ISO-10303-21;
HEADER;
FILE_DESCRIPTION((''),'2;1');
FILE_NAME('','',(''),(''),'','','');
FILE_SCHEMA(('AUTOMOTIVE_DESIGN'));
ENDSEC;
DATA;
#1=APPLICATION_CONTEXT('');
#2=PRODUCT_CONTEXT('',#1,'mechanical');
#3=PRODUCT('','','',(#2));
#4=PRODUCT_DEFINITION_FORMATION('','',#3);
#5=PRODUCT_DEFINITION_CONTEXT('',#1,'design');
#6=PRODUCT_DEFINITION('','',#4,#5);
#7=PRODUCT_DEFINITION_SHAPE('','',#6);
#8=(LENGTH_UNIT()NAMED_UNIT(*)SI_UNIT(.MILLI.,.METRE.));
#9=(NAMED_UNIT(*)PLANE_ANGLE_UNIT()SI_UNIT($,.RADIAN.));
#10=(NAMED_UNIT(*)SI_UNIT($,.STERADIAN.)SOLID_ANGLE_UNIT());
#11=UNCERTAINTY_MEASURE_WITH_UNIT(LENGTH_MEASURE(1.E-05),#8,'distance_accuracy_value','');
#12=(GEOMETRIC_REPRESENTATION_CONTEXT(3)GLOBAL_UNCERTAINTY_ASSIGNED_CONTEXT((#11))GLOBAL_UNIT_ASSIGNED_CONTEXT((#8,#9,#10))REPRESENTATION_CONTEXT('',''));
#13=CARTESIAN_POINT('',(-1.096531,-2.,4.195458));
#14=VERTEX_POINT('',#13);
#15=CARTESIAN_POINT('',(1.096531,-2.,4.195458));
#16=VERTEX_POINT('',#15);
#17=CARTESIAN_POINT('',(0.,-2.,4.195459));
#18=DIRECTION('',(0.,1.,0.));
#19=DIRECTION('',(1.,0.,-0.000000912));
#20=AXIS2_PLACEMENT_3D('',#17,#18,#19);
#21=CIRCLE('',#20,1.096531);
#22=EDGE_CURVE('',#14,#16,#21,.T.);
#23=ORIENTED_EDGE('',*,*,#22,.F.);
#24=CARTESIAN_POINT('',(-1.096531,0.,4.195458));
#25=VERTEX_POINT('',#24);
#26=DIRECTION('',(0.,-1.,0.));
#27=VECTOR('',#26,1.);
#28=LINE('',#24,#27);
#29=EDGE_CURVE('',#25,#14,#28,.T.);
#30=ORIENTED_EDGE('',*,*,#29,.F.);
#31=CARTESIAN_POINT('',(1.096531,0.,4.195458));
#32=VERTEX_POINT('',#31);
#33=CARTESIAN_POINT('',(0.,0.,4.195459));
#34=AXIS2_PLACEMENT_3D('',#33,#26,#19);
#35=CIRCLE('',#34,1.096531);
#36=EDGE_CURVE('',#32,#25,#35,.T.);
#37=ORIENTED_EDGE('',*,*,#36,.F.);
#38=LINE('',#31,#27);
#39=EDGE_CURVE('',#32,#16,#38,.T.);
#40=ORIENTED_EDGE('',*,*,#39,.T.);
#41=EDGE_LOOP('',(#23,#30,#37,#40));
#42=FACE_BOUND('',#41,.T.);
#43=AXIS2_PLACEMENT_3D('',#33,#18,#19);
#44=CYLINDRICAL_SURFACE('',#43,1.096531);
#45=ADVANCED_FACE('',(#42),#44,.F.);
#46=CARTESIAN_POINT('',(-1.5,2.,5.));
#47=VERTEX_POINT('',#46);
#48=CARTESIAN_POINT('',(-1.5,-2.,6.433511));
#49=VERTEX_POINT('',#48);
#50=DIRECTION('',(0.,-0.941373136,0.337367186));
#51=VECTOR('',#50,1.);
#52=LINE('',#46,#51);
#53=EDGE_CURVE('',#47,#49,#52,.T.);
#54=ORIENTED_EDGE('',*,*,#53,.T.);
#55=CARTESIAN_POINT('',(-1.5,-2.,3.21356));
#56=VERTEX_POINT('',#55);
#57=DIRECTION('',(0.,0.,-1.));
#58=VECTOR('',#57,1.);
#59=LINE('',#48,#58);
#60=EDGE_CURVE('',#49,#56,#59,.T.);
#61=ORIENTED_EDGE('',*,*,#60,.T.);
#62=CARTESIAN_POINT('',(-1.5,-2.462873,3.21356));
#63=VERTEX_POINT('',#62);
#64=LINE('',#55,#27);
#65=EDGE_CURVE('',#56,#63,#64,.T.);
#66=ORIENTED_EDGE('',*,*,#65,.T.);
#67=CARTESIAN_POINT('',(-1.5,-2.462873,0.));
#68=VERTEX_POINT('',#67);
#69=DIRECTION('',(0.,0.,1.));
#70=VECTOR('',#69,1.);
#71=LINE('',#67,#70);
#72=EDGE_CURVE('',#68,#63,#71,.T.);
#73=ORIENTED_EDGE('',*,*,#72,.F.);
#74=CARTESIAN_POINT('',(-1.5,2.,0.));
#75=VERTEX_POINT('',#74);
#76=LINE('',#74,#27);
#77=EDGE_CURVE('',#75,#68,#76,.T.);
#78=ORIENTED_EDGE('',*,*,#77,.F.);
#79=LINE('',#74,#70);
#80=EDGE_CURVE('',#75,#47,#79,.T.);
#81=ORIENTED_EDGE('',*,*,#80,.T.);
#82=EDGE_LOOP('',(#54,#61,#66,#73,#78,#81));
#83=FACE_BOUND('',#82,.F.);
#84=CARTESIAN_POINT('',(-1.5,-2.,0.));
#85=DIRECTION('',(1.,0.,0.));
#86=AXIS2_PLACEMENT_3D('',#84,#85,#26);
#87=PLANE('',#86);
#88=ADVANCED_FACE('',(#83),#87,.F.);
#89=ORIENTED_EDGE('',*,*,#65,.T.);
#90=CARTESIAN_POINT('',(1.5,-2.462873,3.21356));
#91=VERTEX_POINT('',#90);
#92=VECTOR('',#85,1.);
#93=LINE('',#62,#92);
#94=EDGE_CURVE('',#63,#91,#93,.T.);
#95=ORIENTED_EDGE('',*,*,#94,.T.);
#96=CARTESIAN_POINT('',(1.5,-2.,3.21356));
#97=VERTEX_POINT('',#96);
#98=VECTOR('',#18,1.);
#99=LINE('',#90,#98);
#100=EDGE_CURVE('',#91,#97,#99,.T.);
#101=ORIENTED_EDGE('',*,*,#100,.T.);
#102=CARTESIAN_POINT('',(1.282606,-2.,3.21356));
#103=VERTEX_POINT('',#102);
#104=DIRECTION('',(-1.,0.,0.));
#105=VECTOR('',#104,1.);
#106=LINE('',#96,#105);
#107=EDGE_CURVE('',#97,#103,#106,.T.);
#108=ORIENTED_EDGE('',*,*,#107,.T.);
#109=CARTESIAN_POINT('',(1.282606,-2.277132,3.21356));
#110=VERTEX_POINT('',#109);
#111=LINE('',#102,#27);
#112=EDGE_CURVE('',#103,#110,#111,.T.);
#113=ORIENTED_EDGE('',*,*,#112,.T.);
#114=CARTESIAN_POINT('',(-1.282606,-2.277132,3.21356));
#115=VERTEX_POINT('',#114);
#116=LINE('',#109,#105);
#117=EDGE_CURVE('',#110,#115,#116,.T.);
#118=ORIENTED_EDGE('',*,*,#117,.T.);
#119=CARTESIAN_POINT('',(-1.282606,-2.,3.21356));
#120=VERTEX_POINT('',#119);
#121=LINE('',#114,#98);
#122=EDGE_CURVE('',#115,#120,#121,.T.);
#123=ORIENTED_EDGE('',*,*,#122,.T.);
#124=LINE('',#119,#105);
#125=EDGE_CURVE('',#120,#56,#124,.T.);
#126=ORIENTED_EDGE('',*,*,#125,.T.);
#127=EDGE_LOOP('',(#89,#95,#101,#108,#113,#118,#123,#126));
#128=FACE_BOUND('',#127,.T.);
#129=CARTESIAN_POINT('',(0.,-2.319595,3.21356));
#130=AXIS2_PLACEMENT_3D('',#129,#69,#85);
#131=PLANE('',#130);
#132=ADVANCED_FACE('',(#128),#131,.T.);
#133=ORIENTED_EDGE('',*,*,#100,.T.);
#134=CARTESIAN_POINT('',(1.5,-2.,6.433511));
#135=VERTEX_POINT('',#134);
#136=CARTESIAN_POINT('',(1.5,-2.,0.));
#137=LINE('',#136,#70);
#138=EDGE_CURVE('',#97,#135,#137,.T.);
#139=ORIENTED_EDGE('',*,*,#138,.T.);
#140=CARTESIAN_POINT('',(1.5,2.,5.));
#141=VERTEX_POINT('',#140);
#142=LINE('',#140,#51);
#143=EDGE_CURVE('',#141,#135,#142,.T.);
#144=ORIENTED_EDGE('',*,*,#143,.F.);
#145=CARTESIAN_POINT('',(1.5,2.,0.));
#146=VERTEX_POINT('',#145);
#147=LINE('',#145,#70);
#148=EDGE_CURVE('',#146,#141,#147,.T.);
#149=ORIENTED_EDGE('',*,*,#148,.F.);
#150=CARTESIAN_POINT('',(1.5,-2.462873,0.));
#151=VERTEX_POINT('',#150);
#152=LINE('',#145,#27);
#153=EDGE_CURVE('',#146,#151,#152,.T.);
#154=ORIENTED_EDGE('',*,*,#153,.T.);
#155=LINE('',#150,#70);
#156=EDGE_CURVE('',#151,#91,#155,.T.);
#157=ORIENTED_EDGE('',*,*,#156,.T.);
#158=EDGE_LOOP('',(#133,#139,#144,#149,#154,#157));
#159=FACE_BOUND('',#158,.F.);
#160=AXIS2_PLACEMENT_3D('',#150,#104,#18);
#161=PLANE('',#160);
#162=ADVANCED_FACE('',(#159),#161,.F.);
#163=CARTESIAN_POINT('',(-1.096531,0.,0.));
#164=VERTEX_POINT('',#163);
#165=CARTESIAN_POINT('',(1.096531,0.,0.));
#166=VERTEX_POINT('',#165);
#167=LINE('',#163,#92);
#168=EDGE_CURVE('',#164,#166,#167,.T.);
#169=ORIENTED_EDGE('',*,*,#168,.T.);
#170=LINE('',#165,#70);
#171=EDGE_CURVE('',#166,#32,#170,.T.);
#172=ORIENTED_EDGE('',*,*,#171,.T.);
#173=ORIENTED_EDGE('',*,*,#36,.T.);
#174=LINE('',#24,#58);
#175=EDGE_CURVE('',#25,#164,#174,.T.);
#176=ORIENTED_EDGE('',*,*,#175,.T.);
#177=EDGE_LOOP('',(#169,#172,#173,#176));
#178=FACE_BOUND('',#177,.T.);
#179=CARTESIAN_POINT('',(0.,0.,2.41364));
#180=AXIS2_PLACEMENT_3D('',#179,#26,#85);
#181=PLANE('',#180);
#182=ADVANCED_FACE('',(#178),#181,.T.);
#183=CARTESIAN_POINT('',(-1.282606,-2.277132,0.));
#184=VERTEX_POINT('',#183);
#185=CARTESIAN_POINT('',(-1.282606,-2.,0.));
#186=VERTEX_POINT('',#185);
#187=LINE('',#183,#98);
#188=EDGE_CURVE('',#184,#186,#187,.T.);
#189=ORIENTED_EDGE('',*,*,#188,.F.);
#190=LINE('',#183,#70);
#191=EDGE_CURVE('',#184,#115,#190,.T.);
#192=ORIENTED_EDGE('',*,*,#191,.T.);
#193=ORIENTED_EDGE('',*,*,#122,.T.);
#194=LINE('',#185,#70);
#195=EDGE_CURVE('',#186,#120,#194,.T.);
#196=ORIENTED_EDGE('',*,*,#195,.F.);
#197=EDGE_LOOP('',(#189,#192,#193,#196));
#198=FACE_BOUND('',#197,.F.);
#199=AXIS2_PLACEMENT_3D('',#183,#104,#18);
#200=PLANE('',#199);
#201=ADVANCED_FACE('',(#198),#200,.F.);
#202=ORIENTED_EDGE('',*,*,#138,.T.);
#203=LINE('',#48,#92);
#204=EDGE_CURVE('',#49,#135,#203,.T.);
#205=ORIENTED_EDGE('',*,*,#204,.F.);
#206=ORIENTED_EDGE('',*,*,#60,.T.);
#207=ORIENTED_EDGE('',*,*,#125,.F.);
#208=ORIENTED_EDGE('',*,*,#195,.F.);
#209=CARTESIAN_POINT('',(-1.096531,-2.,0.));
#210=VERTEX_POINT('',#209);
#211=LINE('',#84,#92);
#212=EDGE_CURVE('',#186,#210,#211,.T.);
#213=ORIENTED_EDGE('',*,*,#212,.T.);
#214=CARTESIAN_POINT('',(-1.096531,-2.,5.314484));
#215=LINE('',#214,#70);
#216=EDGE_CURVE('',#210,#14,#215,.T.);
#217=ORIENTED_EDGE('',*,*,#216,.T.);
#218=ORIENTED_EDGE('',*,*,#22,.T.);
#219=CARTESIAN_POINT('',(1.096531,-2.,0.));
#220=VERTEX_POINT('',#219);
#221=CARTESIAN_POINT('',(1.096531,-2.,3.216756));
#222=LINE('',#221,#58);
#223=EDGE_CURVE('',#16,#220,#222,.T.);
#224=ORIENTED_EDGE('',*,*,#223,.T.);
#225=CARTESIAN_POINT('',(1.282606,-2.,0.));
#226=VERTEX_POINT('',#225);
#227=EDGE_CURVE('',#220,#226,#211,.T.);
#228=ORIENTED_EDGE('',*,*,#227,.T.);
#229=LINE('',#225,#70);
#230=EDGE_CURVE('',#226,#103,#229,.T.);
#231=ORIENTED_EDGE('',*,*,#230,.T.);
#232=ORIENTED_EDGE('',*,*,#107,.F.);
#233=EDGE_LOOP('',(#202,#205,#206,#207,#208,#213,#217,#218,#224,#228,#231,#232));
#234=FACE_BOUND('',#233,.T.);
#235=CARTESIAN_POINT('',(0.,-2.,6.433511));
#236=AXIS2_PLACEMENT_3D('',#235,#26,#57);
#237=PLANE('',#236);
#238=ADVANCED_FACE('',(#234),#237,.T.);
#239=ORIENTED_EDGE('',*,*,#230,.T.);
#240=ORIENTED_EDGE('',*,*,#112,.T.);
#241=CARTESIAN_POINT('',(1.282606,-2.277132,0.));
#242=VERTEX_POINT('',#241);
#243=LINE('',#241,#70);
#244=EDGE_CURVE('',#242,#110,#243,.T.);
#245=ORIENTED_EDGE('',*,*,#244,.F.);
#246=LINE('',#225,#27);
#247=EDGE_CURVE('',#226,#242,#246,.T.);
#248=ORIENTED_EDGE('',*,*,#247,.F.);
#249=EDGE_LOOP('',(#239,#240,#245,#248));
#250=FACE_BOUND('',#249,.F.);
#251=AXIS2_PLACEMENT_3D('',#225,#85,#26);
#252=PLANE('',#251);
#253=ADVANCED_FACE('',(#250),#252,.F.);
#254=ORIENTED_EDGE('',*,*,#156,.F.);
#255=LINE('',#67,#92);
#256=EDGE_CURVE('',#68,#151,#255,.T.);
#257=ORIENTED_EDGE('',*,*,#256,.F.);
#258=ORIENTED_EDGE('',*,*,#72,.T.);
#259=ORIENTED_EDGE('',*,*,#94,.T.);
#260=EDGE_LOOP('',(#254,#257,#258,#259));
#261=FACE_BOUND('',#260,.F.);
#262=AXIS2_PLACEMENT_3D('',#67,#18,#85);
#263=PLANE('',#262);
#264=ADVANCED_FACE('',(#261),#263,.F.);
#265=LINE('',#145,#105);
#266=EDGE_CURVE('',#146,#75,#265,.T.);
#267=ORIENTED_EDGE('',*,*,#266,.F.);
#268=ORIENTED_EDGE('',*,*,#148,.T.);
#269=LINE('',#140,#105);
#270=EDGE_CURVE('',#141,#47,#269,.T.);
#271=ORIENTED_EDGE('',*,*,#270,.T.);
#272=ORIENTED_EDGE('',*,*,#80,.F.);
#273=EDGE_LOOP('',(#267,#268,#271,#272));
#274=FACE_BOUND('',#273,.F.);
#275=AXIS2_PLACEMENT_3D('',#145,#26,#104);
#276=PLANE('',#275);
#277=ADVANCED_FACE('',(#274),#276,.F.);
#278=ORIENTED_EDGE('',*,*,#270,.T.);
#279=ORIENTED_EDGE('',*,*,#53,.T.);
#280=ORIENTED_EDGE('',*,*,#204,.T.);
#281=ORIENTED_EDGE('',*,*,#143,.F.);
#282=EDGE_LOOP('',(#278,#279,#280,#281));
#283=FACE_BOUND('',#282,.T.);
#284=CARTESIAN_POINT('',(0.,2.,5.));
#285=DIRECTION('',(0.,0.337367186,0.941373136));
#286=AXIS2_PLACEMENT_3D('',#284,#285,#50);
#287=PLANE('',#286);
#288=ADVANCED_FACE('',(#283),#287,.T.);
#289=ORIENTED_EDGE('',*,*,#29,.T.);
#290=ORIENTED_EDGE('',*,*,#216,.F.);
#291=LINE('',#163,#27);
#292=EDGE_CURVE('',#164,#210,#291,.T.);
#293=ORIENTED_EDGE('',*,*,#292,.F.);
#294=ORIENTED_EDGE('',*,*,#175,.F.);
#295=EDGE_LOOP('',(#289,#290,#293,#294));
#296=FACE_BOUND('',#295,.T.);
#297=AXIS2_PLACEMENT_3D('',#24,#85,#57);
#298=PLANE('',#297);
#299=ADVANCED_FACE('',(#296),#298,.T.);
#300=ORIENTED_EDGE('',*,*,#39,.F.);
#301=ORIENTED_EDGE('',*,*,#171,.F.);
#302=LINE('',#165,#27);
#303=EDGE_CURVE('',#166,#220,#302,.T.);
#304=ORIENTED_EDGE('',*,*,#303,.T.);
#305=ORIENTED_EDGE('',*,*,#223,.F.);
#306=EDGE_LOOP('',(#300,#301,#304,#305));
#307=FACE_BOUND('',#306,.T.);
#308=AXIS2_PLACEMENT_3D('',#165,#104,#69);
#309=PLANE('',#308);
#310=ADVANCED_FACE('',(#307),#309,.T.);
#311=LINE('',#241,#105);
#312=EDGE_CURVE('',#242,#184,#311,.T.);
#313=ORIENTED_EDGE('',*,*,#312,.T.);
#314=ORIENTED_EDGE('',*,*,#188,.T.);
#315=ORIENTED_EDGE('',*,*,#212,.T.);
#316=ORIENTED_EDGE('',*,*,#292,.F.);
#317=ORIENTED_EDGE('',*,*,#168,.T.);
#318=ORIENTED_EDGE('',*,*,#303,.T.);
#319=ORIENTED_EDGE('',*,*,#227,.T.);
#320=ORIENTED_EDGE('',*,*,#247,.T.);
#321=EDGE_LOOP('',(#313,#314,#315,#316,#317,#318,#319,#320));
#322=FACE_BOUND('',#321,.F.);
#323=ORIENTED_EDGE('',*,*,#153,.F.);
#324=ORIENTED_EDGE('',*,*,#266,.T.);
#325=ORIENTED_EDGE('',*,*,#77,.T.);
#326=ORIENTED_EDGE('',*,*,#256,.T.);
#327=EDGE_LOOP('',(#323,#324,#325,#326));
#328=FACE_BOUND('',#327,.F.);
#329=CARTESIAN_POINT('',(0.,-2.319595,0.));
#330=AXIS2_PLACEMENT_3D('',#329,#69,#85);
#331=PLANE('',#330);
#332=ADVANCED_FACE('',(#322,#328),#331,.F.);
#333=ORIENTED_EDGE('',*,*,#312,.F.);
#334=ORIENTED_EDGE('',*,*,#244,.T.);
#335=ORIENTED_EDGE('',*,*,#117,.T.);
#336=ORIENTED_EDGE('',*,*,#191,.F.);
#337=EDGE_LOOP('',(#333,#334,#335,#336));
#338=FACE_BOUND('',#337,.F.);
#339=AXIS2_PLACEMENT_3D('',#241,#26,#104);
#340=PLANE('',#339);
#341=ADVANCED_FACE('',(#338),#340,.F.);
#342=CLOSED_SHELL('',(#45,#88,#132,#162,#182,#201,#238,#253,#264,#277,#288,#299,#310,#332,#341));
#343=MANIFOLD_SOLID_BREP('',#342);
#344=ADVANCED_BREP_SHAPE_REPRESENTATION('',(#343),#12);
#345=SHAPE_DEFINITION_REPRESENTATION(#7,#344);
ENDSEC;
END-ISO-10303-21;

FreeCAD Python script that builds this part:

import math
import FreeCAD as App
import Part
import Sketcher


def add_polygon(sketch, points):
    """Adds a closed chain of lines whose ends are joined by coincident constraints."""
    first, n = sketch.GeometryCount, len(points)
    for a, b in zip(points, points[1:] + points[:1]):
        sketch.addGeometry(Part.LineSegment(App.Vector(*a, 0), App.Vector(*b, 0)), False)
    for i in range(n):
        sketch.addConstraint(Sketcher.Constraint("Coincident", first + i, 2, first + (i + 1) % n, 1))

doc = App.newDocument("Part")
body = doc.addObject("PartDesign::Body", "Body")

# Sketch on XY plane
sketch1 = doc.addObject("Sketcher::SketchObject", "Sketch")
body.addObject(sketch1)
sketch1.AttachmentSupport = (doc.XY_Plane, [""])
sketch1.MapMode = "FlatFace"
add_polygon(sketch1, [(1.5, 2), (-1.5, 2), (-1.5, -2), (1.5, -2)])  # lines 0-3
sketch1.addConstraint([
    Sketcher.Constraint("Horizontal", 0),
    Sketcher.Constraint("Vertical", 1),
    Sketcher.Constraint("Horizontal", 2),
    Sketcher.Constraint("Vertical", 3),
    Sketcher.Constraint("Symmetric", 0, 2, 2, 2, -1, 1),
    Sketcher.Constraint("DistanceX", 0, 2, 0, 1, 3.0),
    Sketcher.Constraint("DistanceY", 1, 2, 1, 1, 4.0),
])
pad1 = doc.addObject("PartDesign::Pad", "Pad")
body.addObject(pad1)
pad1.Profile = sketch1
pad1.Length = 5

# Sketch on YZ plane
sketch2 = doc.addObject("Sketcher::SketchObject", "Sketch001")
body.addObject(sketch2)
sketch2.AttachmentSupport = (doc.YZ_Plane, [""])
sketch2.MapMode = "FlatFace"
add_polygon(sketch2, [(-2, 5), (2, 5), (-2, 6.4)])  # lines 0-2
sketch2.addConstraint([
    Sketcher.Constraint("Horizontal", 0),
    Sketcher.Constraint("Vertical", 2),
    Sketcher.Constraint("DistanceX", 0, 1, 0, 2, 4.0),
    Sketcher.Constraint("DistanceX", -1, 1, 0, 2, 2.0),
    Sketcher.Constraint("DistanceY", -1, 1, 0, 2, 5.0),
    Sketcher.Constraint("DistanceY", 2, 2, 2, 1, 1.433511),
])
pad2 = doc.addObject("PartDesign::Pad", "Pad001")
body.addObject(pad2)
pad2.Profile = sketch2
pad2.Type = "TwoLengths"
pad2.Length = 1.5
pad2.Length2 = 1.5

# Sketch on XZ plane
sketch3 = doc.addObject("Sketcher::SketchObject", "Sketch002")
body.addObject(sketch3)
sketch3.AttachmentSupport = (doc.XZ_Plane, [""])
sketch3.MapMode = "FlatFace"
sketch3.addGeometry([
    Part.LineSegment(App.Vector(1.1, 0, 0), App.Vector(1.1, 4.2, 0)),
    Part.ArcOfCircle(Part.Circle(App.Vector(0, 4.2, 0), App.Vector(0, 0, 1), 1.1), math.radians(0), math.radians(180)),
    Part.LineSegment(App.Vector(-1.1, 4.2, 0), App.Vector(-1.1, 0, 0)),
    Part.LineSegment(App.Vector(-1.1, 0, 0), App.Vector(1.1, 0, 0)),
], False)
sketch3.addConstraint([
    Sketcher.Constraint("Tangent", 0, 2, 1, 1),
    Sketcher.Constraint("Tangent", 1, 2, 2, 1),
    Sketcher.Constraint("Coincident", 2, 2, 3, 1),
    Sketcher.Constraint("Coincident", 3, 2, 0, 1),
    Sketcher.Constraint("Vertical", 0),
    Sketcher.Constraint("Vertical", 2),
    Sketcher.Constraint("Horizontal", 3),
    Sketcher.Constraint("Symmetric", 2, 2, 3, 2, -1, 1),
    Sketcher.Constraint("Radius", 1, 1.096531),
    Sketcher.Constraint("DistanceY", 0, 1, 0, 2, 4.195458),
])
pocket1 = doc.addObject("PartDesign::Pocket", "Pocket")
body.addObject(pocket1)
pocket1.Profile = sketch3
pocket1.Length = 6.23198
pocket1.Reversed = True

# Sketch on XY plane
sketch4 = doc.addObject("Sketcher::SketchObject", "Sketch003")
body.addObject(sketch4)
sketch4.AttachmentSupport = (doc.XY_Plane, [""])
sketch4.MapMode = "FlatFace"
add_polygon(sketch4, [(-1.28, -2), (-1.5, -2), (-1.5, -2.46), (1.5, -2.46), (1.5, -2), (1.28, -2), (1.28, -2.28), (-1.28, -2.28)])  # lines 0-7
sketch4.addConstraint([
    Sketcher.Constraint("Horizontal", 0),
    Sketcher.Constraint("Vertical", 1),
    Sketcher.Constraint("Horizontal", 2),
    Sketcher.Constraint("Vertical", 3),
    Sketcher.Constraint("Horizontal", 4),
    Sketcher.Constraint("Vertical", 5),
    Sketcher.Constraint("Horizontal", 6),
    Sketcher.Constraint("Vertical", 7),
    Sketcher.Constraint("Symmetric", 0, 2, 3, 2, -2),
    Sketcher.Constraint("Equal", 0, 4),
    Sketcher.Constraint("DistanceX", 2, 1, 2, 2, 3.0),
    Sketcher.Constraint("DistanceY", 0, 2, -1, 1, 2.0),
    Sketcher.Constraint("DistanceX", 6, 2, 6, 1, 2.565212),
    Sketcher.Constraint("DistanceY", 5, 2, 5, 1, 0.277132),
    Sketcher.Constraint("DistanceY", 1, 2, 1, 1, 0.462873),
])
pad3 = doc.addObject("PartDesign::Pad", "Pad002")
body.addObject(pad3)
pad3.Profile = sketch4
pad3.Length = 3.21356

doc.recompute()
